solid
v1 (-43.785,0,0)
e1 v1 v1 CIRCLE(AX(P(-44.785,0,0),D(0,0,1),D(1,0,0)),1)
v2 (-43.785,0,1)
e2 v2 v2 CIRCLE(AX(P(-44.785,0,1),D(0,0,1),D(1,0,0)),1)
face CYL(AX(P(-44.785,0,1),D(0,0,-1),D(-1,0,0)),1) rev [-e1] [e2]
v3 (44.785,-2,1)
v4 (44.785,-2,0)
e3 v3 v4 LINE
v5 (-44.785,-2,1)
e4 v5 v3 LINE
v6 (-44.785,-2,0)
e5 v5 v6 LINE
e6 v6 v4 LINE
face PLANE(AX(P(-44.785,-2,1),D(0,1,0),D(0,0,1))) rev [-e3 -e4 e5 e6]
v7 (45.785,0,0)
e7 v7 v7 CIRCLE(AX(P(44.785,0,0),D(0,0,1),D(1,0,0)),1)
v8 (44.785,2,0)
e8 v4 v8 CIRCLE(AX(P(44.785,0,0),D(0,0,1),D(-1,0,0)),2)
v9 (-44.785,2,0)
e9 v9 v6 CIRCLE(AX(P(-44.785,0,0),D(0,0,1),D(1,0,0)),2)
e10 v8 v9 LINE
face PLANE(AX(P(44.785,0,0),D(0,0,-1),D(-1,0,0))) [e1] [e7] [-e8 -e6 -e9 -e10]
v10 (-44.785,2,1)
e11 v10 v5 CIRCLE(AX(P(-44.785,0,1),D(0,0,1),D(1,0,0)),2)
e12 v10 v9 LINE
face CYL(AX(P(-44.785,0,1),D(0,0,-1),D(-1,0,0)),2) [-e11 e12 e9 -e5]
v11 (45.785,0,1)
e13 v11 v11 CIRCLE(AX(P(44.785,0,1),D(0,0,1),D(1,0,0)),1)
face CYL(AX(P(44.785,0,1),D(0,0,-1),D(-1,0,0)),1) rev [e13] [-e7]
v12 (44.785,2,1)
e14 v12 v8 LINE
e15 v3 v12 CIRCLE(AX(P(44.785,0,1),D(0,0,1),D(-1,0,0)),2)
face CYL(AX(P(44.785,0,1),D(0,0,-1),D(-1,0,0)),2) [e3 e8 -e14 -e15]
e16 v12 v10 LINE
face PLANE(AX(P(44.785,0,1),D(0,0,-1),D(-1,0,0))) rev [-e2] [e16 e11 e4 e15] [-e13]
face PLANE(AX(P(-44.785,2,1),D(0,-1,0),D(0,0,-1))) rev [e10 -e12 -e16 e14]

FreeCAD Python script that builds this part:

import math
import FreeCAD as App
import Part
import Sketcher
from FreeCAD import Vector

doc = App.newDocument("Part")
body = doc.addObject("PartDesign::Body", "Body")

# Sketch on XY plane
sketch1 = body.newObject("Sketcher::SketchObject", "Sketch")
sketch1.AttachmentSupport = (doc.getObject("XY_Plane"), [""])
sketch1.MapMode = "FlatFace"
sketch1.addGeometry([
    Part.LineSegment(Vector(44.8, 2, 0), Vector(-44.8, 2, 0)),  # 0
    Part.ArcOfCircle(Part.Circle(Vector(-44.8, 0, 0), Vector(0, 0, 1), 2), math.radians(90), math.radians(270)),  # 1
    Part.LineSegment(Vector(-44.8, -2, 0), Vector(44.8, -2, 0)),  # 2
    Part.ArcOfCircle(Part.Circle(Vector(44.8, 0, 0), Vector(0, 0, 1), 2), math.radians(-90), math.radians(90)),  # 3
    Part.Circle(Vector(44.8, 0, 0), Vector(0, 0, 1), 1),  # 4
    Part.Circle(Vector(-44.8, 0, 0), Vector(0, 0, 1), 1),  # 5
], False)
sketch1.addConstraint([
    Sketcher.Constraint("Tangent", 0, 2, 1, 1),
    Sketcher.Constraint("Tangent", 1, 2, 2, 1),
    Sketcher.Constraint("Tangent", 2, 2, 3, 1),
    Sketcher.Constraint("Tangent", 3, 2, 0, 1),
    Sketcher.Constraint("Horizontal", 0),
    Sketcher.Constraint("Horizontal", 2),
    Sketcher.Constraint("Coincident", 4, 3, 3, 3),
    Sketcher.Constraint("Coincident", 5, 3, 1, 3),
    Sketcher.Constraint("Equal", 4, 5),
    Sketcher.Constraint("Symmetric", 1, 3, 3, 3, -1, 1),
    Sketcher.Constraint("Diameter", 4, 2.0),
    Sketcher.Constraint("Radius", 1, 2.0),
    Sketcher.Constraint("DistanceX", 0, 2, 0, 1, 89.57),
])
pad1 = body.newObject("PartDesign::Pad", "Pad")
pad1.Profile = sketch1
pad1.Length = 1

doc.recompute()
